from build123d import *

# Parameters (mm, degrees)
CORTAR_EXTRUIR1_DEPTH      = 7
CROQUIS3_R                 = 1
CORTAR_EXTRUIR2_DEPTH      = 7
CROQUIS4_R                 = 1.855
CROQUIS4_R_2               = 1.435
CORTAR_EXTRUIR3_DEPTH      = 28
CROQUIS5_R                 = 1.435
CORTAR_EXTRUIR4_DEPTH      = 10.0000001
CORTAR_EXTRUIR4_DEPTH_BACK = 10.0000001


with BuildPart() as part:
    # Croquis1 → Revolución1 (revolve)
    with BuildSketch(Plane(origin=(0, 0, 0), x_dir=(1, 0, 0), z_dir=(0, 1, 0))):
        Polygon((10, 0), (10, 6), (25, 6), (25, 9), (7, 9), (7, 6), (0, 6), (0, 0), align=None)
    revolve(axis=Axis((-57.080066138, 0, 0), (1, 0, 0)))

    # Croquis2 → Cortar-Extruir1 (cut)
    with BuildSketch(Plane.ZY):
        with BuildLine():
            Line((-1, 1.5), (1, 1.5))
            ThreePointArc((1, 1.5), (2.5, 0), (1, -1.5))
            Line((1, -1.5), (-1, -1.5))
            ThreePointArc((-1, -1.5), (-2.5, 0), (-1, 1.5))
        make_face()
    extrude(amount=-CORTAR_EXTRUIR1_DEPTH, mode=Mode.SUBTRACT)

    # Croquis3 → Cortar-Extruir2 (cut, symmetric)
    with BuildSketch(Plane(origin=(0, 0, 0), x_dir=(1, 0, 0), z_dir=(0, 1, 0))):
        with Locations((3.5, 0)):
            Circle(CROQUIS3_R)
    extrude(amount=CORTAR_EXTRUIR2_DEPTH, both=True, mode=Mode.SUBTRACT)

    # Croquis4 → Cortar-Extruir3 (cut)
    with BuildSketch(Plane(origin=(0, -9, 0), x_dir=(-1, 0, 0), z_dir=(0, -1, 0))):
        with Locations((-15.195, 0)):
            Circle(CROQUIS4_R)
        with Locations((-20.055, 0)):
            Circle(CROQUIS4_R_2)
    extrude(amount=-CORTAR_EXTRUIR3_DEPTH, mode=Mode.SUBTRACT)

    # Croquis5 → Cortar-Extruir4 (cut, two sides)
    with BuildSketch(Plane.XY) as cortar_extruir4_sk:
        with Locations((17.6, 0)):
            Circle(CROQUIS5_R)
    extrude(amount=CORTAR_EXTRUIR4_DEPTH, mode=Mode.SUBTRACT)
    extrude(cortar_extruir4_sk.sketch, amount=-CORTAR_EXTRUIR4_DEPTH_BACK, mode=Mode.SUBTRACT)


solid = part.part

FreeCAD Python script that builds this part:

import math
import FreeCAD as App
import Part
import Sketcher
from FreeCAD import Vector
Q = App.Units.Quantity

doc = App.newDocument("Part")
body = doc.addObject("PartDesign::Body", "Body")

# Sketch on XZ plane
sketch1 = doc.addObject("Sketcher::SketchObject", "Sketch")
body.addObject(sketch1)
sketch1.AttachmentSupport = (doc.XZ_Plane, [""])
sketch1.MapMode = "FlatFace"
sketch1.addGeometry([
    Part.LineSegment(Vector(10, 0, 0), Vector(10, -6, 0)),  # 0
    Part.LineSegment(Vector(10, -6, 0), Vector(25, -6, 0)),  # 1
    Part.LineSegment(Vector(25, -6, 0), Vector(25, -9, 0)),  # 2
    Part.LineSegment(Vector(25, -9, 0), Vector(7, -9, 0)),  # 3
    Part.LineSegment(Vector(7, -9, 0), Vector(7, -6, 0)),  # 4
    Part.LineSegment(Vector(7, -6, 0), Vector(0, -6, 0)),  # 5
    Part.LineSegment(Vector(0, -6, 0), Vector(0, 0, 0)),  # 6
    Part.LineSegment(Vector(0, 0, 0), Vector(10, 0, 0)),  # 7
], False)
sketch1.addConstraint([
    Sketcher.Constraint("Coincident", 0, 2, 1, 1),
    Sketcher.Constraint("Coincident", 1, 2, 2, 1),
    Sketcher.Constraint("Coincident", 2, 2, 3, 1),
    Sketcher.Constraint("Coincident", 3, 2, 4, 1),
    Sketcher.Constraint("Coincident", 4, 2, 5, 1),
    Sketcher.Constraint("Coincident", 5, 2, 6, 1),
    Sketcher.Constraint("Coincident", 6, 2, 7, 1),
    Sketcher.Constraint("Coincident", 7, 2, 0, 1),
    Sketcher.Constraint("Vertical", 0),
    Sketcher.Constraint("Horizontal", 1),
    Sketcher.Constraint("Vertical", 2),
    Sketcher.Constraint("Horizontal", 3),
    Sketcher.Constraint("Vertical", 4),
    Sketcher.Constraint("Horizontal", 5),
    Sketcher.Constraint("Vertical", 6),
    Sketcher.Constraint("Horizontal", 7),
    Sketcher.Constraint("Coincident", 6, 2, -1, 1),
    Sketcher.Constraint("Horizontal", 1, 2, 4, 2),
    Sketcher.Constraint("DistanceX", 1, 1, 1, 2, Q("15 mm")),
    Sketcher.Constraint("DistanceX", 3, 2, 3, 1, Q("18 mm")),
    Sketcher.Constraint("DistanceX", 5, 2, 5, 1, Q("7 mm")),
    Sketcher.Constraint("DistanceY", 0, 2, 0, 1, Q("6 mm")),
    Sketcher.Constraint("DistanceY", 2, 2, 2, 1, Q("3 mm")),
])
revolution = doc.addObject("PartDesign::Revolution", "Revolution")
body.addObject(revolution)
revolution.Profile = sketch1
revolution.ReferenceAxis = (sketch1, ["H_Axis"])
revolution.Angle = 360

# Sketch on YZ plane
sketch2 = doc.addObject("Sketcher::SketchObject", "Sketch001")
body.addObject(sketch2)
sketch2.AttachmentSupport = (doc.YZ_Plane, [""])
sketch2.MapMode = "FlatFace"
sketch2.addGeometry([
    Part.LineSegment(Vector(1.5, 1, 0), Vector(1.5, -1, 0)),
    Part.ArcOfCircle(Part.Circle(Vector(0, -1, 0), Vector(0, 0, 1), 1.5), math.radians(180), math.radians(360)),
    Part.LineSegment(Vector(-1.5, -1, 0), Vector(-1.5, 1, 0)),
    Part.ArcOfCircle(Part.Circle(Vector(0, 1, 0), Vector(0, 0, 1), 1.5), math.radians(0), math.radians(180)),
], False)
sketch2.addConstraint([
    Sketcher.Constraint("Tangent", 0, 2, 1, 2),
    Sketcher.Constraint("Tangent", 1, 1, 2, 1),
    Sketcher.Constraint("Tangent", 2, 2, 3, 2),
    Sketcher.Constraint("Tangent", 3, 1, 0, 1),
    Sketcher.Constraint("Vertical", 0),
    Sketcher.Constraint("Vertical", 2),
    Sketcher.Constraint("Symmetric", 1, 3, 3, 3, -1, 1),
    Sketcher.Constraint("Radius", 1, Q("1.5 mm")),
    Sketcher.Constraint("DistanceY", 0, 2, 0, 1, Q("2 mm")),
])
pocket1 = doc.addObject("PartDesign::Pocket", "Pocket")
body.addObject(pocket1)
pocket1.Profile = sketch2
pocket1.Length = 7
pocket1.Reversed = True

# Sketch on XZ plane
sketch3 = doc.addObject("Sketcher::SketchObject", "Sketch002")
body.addObject(sketch3)
sketch3.AttachmentSupport = (doc.XZ_Plane, [""])
sketch3.MapMode = "FlatFace"
sketch3.addGeometry(Part.Circle(Vector(3.5, 0, 0), Vector(0, 0, 1), 1), False)
sketch3.addConstraint([
    Sketcher.Constraint("PointOnObject", 0, 3, -1),
    Sketcher.Constraint("Diameter", 0, Q("2 mm")),
    Sketcher.Constraint("DistanceX", -1, 1, 0, 3, Q("3.5 mm")),
])
pocket2 = doc.addObject("PartDesign::Pocket", "Pocket001")
body.addObject(pocket2)
pocket2.Profile = sketch3
pocket2.Length = 14
pocket2.Midplane = True

# Sketch on XZ plane
sketch4 = doc.addObject("Sketcher::SketchObject", "Sketch003")
body.addObject(sketch4)
sketch4.AttachmentSupport = (doc.XZ_Plane, [""])
sketch4.MapMode = "FlatFace"
sketch4.AttachmentOffset = App.Placement(Vector(0, 0, 9), App.Rotation())
sketch4.addGeometry([
    Part.Circle(Vector(15.2, 0, 0), Vector(0, 0, 1), 1.9),
    Part.Circle(Vector(20.1, 0, 0), Vector(0, 0, 1), 1.4),
], False)
sketch4.addConstraint([
    Sketcher.Constraint("PointOnObject", 0, 3, -1),
    Sketcher.Constraint("PointOnObject", 1, 3, -1),
    Sketcher.Constraint("Diameter", 0, Q("3.71 mm")),
    Sketcher.Constraint("Diameter", 1, Q("2.87 mm")),
    Sketcher.Constraint("DistanceX", 0, 3, 1, 3, Q("4.86 mm")),
    Sketcher.Constraint("DistanceX", -1, 1, 0, 3, Q("15.195 mm")),
])
pocket3 = doc.addObject("PartDesign::Pocket", "Pocket002")
body.addObject(pocket3)
pocket3.Profile = sketch4
pocket3.Length = 28

# Sketch on XY plane
sketch5 = doc.addObject("Sketcher::SketchObject", "Sketch004")
body.addObject(sketch5)
sketch5.AttachmentSupport = (doc.XY_Plane, [""])
sketch5.MapMode = "FlatFace"
sketch5.addGeometry(Part.Circle(Vector(17.6, 0, 0), Vector(0, 0, 1), 1.4), False)
sketch5.addConstraint([
    Sketcher.Constraint("PointOnObject", 0, 3, -1),
    Sketcher.Constraint("Diameter", 0, Q("2.87 mm")),
    Sketcher.Constraint("DistanceX", -1, 1, 0, 3, Q("17.6 mm")),
])
pocket4 = doc.addObject("PartDesign::Pocket", "Pocket003")
body.addObject(pocket4)
pocket4.Profile = sketch5
pocket4.Type = "ThroughAll"
pocket4.Midplane = True

doc.recompute()
